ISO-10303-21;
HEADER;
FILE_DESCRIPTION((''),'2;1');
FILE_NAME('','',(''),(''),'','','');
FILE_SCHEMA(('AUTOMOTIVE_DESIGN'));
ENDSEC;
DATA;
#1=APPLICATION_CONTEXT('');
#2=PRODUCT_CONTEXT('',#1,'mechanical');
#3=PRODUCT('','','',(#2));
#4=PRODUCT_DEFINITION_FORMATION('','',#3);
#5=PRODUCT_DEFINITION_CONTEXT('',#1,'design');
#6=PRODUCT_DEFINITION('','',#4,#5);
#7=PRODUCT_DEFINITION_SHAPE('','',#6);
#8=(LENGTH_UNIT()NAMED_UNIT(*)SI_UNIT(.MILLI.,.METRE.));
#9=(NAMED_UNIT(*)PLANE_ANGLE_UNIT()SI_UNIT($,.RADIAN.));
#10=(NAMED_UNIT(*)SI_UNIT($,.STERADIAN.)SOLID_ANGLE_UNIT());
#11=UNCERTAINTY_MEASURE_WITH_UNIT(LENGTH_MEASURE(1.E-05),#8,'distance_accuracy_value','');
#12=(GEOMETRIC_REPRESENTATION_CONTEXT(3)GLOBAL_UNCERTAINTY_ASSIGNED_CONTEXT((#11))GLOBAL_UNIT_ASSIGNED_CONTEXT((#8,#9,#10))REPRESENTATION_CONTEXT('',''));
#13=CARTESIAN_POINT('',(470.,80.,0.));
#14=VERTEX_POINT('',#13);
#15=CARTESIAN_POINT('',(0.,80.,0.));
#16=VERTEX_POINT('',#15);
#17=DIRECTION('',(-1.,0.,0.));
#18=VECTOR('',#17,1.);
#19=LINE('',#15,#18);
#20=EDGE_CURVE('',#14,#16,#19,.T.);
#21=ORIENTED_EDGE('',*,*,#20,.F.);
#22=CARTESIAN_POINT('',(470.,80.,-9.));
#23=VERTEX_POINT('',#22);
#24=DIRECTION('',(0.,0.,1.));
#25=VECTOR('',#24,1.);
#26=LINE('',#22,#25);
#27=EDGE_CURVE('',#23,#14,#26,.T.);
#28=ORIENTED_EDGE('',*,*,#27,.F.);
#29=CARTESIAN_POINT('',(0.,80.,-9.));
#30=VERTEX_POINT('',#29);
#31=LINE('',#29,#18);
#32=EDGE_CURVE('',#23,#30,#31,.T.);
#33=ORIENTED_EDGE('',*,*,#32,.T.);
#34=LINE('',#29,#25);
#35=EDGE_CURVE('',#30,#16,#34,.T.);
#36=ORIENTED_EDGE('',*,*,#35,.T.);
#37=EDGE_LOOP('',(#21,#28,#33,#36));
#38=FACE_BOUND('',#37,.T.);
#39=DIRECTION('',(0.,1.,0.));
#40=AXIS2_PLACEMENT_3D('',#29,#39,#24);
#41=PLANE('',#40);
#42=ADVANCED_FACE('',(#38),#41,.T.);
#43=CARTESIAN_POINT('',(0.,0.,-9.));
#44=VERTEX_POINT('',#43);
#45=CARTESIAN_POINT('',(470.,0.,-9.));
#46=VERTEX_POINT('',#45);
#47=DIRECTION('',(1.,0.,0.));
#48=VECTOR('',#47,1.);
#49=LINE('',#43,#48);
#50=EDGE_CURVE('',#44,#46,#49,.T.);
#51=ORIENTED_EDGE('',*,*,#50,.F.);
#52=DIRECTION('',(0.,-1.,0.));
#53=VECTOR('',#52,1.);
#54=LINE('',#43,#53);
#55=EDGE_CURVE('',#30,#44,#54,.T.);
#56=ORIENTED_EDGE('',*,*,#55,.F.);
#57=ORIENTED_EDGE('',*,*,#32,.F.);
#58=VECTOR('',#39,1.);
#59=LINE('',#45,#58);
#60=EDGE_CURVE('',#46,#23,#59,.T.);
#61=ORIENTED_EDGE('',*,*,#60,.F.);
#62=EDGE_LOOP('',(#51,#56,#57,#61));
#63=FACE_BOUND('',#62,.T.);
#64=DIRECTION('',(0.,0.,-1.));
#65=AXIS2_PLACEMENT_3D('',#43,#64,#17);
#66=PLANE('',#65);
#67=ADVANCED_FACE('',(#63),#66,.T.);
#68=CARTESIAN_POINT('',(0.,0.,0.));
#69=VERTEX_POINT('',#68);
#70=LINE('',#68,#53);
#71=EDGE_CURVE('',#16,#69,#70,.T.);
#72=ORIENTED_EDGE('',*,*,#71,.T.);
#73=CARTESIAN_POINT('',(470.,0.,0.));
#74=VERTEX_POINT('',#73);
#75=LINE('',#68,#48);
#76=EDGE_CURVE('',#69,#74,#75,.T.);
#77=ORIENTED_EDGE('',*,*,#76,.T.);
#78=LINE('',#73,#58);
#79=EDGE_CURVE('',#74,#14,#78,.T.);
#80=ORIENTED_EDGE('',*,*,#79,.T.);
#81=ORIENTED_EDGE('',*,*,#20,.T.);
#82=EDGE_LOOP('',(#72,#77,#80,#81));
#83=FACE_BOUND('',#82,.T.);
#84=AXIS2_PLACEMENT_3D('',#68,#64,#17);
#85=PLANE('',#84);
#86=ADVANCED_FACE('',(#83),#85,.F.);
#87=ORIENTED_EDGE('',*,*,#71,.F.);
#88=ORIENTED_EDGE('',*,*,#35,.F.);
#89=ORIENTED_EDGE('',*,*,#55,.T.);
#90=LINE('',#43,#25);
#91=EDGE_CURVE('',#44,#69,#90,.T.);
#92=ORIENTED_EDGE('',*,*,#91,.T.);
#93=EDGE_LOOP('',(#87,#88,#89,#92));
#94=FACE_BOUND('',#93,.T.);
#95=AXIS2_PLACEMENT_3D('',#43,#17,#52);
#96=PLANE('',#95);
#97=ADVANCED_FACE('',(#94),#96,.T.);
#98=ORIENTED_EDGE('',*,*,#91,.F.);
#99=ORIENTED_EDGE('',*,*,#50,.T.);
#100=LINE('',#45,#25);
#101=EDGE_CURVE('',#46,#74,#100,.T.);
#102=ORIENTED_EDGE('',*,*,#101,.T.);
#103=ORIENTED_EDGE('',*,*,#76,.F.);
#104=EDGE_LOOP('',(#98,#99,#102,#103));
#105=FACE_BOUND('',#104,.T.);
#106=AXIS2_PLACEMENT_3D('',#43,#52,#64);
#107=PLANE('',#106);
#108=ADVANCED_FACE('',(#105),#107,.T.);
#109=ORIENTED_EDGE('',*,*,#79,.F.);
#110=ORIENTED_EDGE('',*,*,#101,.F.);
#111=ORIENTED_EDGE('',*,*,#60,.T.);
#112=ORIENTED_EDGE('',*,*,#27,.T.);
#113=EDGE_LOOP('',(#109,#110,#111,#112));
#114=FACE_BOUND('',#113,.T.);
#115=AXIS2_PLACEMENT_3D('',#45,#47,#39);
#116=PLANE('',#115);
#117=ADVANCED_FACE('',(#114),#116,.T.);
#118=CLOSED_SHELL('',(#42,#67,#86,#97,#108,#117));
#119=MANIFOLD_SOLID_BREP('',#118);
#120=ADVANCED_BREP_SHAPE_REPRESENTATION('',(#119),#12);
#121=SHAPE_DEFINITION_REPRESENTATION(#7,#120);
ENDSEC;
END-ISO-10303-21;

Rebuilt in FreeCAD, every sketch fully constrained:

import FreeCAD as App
import Part
import Sketcher


def add_polygon(sketch, points):
    """Adds a closed chain of lines whose ends are joined by coincident constraints."""
    first, n = sketch.GeometryCount, len(points)
    for a, b in zip(points, points[1:] + points[:1]):
        sketch.addGeometry(Part.LineSegment(App.Vector(*a, 0), App.Vector(*b, 0)), False)
    for i in range(n):
        sketch.addConstraint(Sketcher.Constraint("Coincident", first + i, 2, first + (i + 1) % n, 1))

doc = App.newDocument("Part")
body = doc.addObject("PartDesign::Body", "Body")

sketch1 = doc.addObject("Sketcher::SketchObject", "Sketch")
body.addObject(sketch1)
sketch1.AttachmentSupport = (doc.XY_Plane, [""])
sketch1.MapMode = "FlatFace"
add_polygon(sketch1, [(0, 80), (0, 0), (470, 0), (470, 80)])
sketch1.addConstraint([
    Sketcher.Constraint("Vertical", 0),
    Sketcher.Constraint("Horizontal", 1),
    Sketcher.Constraint("Vertical", 2),
    Sketcher.Constraint("Horizontal", 3),
    Sketcher.Constraint("Coincident", 0, 2, -1, 1),
    Sketcher.Constraint("DistanceX", 1, 1, 1, 2, 470.0),
    Sketcher.Constraint("DistanceY", 0, 2, 0, 1, 80.0),
])
pad1 = doc.addObject("PartDesign::Pad", "Pad")
body.addObject(pad1)
pad1.Profile = sketch1
pad1.Length = 9
pad1.Reversed = True

doc.recompute()
